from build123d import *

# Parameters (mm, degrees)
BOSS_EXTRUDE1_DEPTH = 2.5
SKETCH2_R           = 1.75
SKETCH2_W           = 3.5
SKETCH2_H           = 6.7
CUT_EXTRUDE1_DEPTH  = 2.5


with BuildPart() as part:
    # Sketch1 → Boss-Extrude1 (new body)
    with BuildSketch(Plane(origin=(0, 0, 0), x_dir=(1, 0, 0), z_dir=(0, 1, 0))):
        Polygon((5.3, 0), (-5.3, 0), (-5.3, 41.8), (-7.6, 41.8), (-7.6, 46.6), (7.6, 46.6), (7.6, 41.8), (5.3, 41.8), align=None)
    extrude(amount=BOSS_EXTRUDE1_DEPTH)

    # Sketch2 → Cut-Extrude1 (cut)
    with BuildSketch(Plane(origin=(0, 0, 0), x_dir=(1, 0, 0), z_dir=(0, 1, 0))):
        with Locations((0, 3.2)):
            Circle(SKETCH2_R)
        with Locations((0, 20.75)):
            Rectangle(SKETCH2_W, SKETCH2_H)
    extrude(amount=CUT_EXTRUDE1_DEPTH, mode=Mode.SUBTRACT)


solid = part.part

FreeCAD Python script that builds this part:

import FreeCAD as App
import Part
import Sketcher


def add_polygon(sketch, points):
    """Adds a closed chain of lines whose ends are joined by coincident constraints."""
    first, n = sketch.GeometryCount, len(points)
    for a, b in zip(points, points[1:] + points[:1]):
        sketch.addGeometry(Part.LineSegment(App.Vector(*a, 0), App.Vector(*b, 0)), False)
    for i in range(n):
        sketch.addConstraint(Sketcher.Constraint("Coincident", first + i, 2, first + (i + 1) % n, 1))

doc = App.newDocument("Part")
params = doc.addObject("Spreadsheet::Sheet", "Params")
for row, (alias, value) in enumerate([
    ("sketch1_width", "10.6 mm"),
    ("sketch1_width2", "2.3 mm"),
    ("sketch1_height", "41.8 mm"),
    ("sketch1_height2", "4.8 mm"),
    ("pad1_length", "2.5 mm"),
    ("sketch2_diameter", "3.5 mm"),
    ("sketch2_width", "3.5 mm"),
    ("sketch2_height", "6.7 mm"),
    ("pocket1_length", "2.5 mm"),
], start=1):
    params.set(f"A{row}", alias)
    params.set(f"B{row}", "=" + value)
    params.setAlias(f"B{row}", alias)

body = doc.addObject("PartDesign::Body", "Body")

sketch1 = body.newObject("Sketcher::SketchObject", "Sketch")
sketch1.AttachmentSupport = (doc.getObject("XZ_Plane"), [""])
sketch1.MapMode = "FlatFace"
add_polygon(sketch1, [(-5.3, 0), (5.3, 0), (5.3, -41.8), (7.6, -41.8), (7.6, -46.6), (-7.6, -46.6), (-7.6, -41.8), (-5.3, -41.8)])
sketch1.addConstraint([
    Sketcher.Constraint("Horizontal", 0),
    Sketcher.Constraint("Vertical", 1),
    Sketcher.Constraint("Horizontal", 2),
    Sketcher.Constraint("Vertical", 3),
    Sketcher.Constraint("Horizontal", 4),
    Sketcher.Constraint("Vertical", 5),
    Sketcher.Constraint("Horizontal", 6),
    Sketcher.Constraint("Vertical", 7),
    Sketcher.Constraint("Symmetric", 0, 2, 7, 2, -1, 1),
    Sketcher.Constraint("Symmetric", 2, 2, 5, 2, -2),
    Sketcher.Constraint("DistanceX", 0, 1, 0, 2, 10.6),
    Sketcher.Constraint("DistanceX", 2, 1, 2, 2, 2.3),
    Sketcher.Constraint("DistanceY", 1, 2, 1, 1, 41.8),
    Sketcher.Constraint("DistanceY", 3, 2, 3, 1, 4.8),
])
sketch1.setExpression("Constraints[18]", "Params.sketch1_width")
sketch1.setExpression("Constraints[19]", "Params.sketch1_width2")
sketch1.setExpression("Constraints[20]", "Params.sketch1_height")
sketch1.setExpression("Constraints[21]", "Params.sketch1_height2")
pad1 = body.newObject("PartDesign::Pad", "Pad")
pad1.Profile = sketch1
pad1.setExpression("Length", "Params.pad1_length")
pad1.Reversed = True

sketch2 = body.newObject("Sketcher::SketchObject", "Sketch001")
sketch2.AttachmentSupport = (doc.getObject("XZ_Plane"), [""])
sketch2.MapMode = "FlatFace"
sketch2.addGeometry(Part.Circle(App.Vector(0, -3.2, 0), App.Vector(0, 0, 1), 1.8), False)
add_polygon(sketch2, [(-1.8, -24.1), (-1.8, -17.4), (1.8, -17.4), (1.8, -24.1)])
sketch2.addConstraint([
    Sketcher.Constraint("Vertical", 1),
    Sketcher.Constraint("Horizontal", 2),
    Sketcher.Constraint("Vertical", 3),
    Sketcher.Constraint("Horizontal", 4),
    Sketcher.Constraint("PointOnObject", 0, 3, -2),
    Sketcher.Constraint("Diameter", 0, 3.5),
    Sketcher.Constraint("DistanceX", 2, 1, 2, 2, 3.5),
    Sketcher.Constraint("DistanceY", 1, 1, 1, 2, 6.7),
    Sketcher.Constraint("DistanceY", 0, 3, -1, 1, 3.2),
    Sketcher.Constraint("DistanceY", 1, 2, -1, 1, 17.4),
    Sketcher.Constraint("DistanceX", 1, 2, -1, 1, 1.75),
])
sketch2.setExpression("Constraints[9]", "Params.sketch2_diameter")
sketch2.setExpression("Constraints[10]", "Params.sketch2_width")
sketch2.setExpression("Constraints[11]", "Params.sketch2_height")
pocket1 = body.newObject("PartDesign::Pocket", "Pocket")
pocket1.Profile = sketch2
pocket1.setExpression("Length", "Params.pocket1_length")

doc.recompute()
